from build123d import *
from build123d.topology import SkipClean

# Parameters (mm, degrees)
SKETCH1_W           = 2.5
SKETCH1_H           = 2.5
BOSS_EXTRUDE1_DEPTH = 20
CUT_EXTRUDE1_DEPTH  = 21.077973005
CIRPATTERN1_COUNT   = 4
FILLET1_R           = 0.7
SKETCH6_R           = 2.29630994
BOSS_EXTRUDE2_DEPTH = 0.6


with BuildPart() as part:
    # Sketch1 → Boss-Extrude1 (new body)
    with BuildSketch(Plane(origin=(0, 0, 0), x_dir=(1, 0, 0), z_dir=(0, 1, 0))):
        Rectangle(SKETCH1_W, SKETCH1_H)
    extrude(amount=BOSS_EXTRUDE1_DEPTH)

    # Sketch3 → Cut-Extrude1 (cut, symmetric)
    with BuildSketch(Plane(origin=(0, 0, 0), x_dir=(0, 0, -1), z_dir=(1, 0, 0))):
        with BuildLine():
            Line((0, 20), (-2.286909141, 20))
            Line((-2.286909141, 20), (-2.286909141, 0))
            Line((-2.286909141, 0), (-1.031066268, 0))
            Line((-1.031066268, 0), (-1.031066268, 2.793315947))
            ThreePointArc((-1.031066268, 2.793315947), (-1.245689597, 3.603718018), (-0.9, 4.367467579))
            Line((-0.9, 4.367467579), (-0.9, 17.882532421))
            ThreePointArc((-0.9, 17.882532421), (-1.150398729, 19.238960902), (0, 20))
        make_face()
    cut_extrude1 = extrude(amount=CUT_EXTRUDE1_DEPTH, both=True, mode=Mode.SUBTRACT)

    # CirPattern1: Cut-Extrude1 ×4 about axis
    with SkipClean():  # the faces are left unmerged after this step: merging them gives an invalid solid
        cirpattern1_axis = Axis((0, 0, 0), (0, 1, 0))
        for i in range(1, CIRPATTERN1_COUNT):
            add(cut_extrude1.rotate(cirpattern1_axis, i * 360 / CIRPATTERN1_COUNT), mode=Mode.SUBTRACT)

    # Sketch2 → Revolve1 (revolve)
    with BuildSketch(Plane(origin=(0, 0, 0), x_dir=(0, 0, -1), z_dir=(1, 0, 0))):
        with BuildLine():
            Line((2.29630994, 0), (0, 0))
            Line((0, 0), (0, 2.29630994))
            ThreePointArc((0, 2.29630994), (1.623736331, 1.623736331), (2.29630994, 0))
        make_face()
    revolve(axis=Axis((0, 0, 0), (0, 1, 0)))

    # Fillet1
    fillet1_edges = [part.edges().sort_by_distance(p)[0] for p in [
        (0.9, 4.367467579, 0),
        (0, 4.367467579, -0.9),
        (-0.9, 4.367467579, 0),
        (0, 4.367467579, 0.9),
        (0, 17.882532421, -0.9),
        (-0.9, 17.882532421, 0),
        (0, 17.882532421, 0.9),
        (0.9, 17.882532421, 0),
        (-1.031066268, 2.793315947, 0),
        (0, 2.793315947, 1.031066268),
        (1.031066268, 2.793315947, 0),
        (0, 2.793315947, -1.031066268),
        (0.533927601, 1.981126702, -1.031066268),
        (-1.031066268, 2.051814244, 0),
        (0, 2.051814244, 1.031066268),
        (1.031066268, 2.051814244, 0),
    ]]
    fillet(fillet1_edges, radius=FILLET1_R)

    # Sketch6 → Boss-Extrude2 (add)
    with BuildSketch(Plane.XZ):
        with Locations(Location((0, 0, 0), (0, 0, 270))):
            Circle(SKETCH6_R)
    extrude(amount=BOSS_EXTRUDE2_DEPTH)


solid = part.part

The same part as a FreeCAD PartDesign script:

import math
import FreeCAD as App
import Part
import Sketcher
Q = App.Units.Quantity


def edges_at(feature, points):
    """Names of the edges that pass closest to the given points."""
    edges = feature.Shape.Edges
    near = lambda p: min(range(len(edges)), key=lambda i: edges[i].distToShape(Part.Vertex(*p))[0])
    return sorted({f"Edge{near(p) + 1}" for p in points})

doc = App.newDocument("Part")
body = doc.addObject("PartDesign::Body", "Body")

# Sketch on XZ plane
sketch1 = body.newObject("Sketcher::SketchObject", "Sketch")
sketch1.AttachmentSupport = (doc.getObject("XZ_Plane"), [""])
sketch1.MapMode = "FlatFace"
sketch1.addGeometry(Part.LineSegment(App.Vector(-1.25, -1.25, 0), App.Vector(-1.25, 1.25, 0)), False)
sketch1.addGeometry(Part.LineSegment(App.Vector(-1.25, 1.25, 0), App.Vector(1.25, 1.25, 0)), False)
sketch1.addGeometry(Part.LineSegment(App.Vector(1.25, 1.25, 0), App.Vector(1.25, -1.25, 0)), False)
sketch1.addGeometry(Part.LineSegment(App.Vector(1.25, -1.25, 0), App.Vector(-1.25, -1.25, 0)), False)
sketch1.addConstraint(Sketcher.Constraint("Coincident", 0, 2, 1, 1))
sketch1.addConstraint(Sketcher.Constraint("Coincident", 1, 2, 2, 1))
sketch1.addConstraint(Sketcher.Constraint("Coincident", 2, 2, 3, 1))
sketch1.addConstraint(Sketcher.Constraint("Coincident", 3, 2, 0, 1))
sketch1.addConstraint(Sketcher.Constraint("Vertical", 0))
sketch1.addConstraint(Sketcher.Constraint("Horizontal", 1))
sketch1.addConstraint(Sketcher.Constraint("Vertical", 2))
sketch1.addConstraint(Sketcher.Constraint("Horizontal", 3))
sketch1.addConstraint(Sketcher.Constraint("Symmetric", 0, 2, 2, 2, -1, 1))
sketch1.addConstraint(Sketcher.Constraint("Equal", 3, 0))
sketch1.addConstraint(Sketcher.Constraint("DistanceX", 1, 1, 1, 2, Q("2.5 mm")))
pad1 = body.newObject("PartDesign::Pad", "Pad")
pad1.Profile = sketch1
pad1.Length = 20
pad1.Reversed = True

# Sketch on YZ plane
sketch2 = body.newObject("Sketcher::SketchObject", "Sketch001")
sketch2.AttachmentSupport = (doc.getObject("YZ_Plane"), [""])
sketch2.MapMode = "FlatFace"
sketch2.addGeometry(Part.LineSegment(App.Vector(20, 0, 0), App.Vector(20, 2.286909, 0)), False)
sketch2.addGeometry(Part.LineSegment(App.Vector(20, 2.286909, 0), App.Vector(0, 2.286909, 0)), False)
sketch2.addGeometry(Part.LineSegment(App.Vector(0, 2.286909, 0), App.Vector(0, 1.031066, 0)), False)
sketch2.addGeometry(Part.LineSegment(App.Vector(0, 1.031066, 0), App.Vector(2.793316, 1.031066, 0)), False)
sketch2.addGeometry(Part.ArcOfCircle(Part.Circle(App.Vector(3.5, 0, 0), App.Vector(0, 0, 1), 1.25), math.radians(46.05448), math.radians(124.426408)), False)
sketch2.addGeometry(Part.LineSegment(App.Vector(4.367468, 0.9, 0), App.Vector(17.882532, 0.9, 0)), False)
sketch2.addGeometry(Part.ArcOfCircle(Part.Circle(App.Vector(18.75, 0, 0), App.Vector(0, 0, 1), 1.25), math.radians(0), math.radians(133.94552)), False)
sketch2.addConstraint(Sketcher.Constraint("Coincident", 0, 2, 1, 1))
sketch2.addConstraint(Sketcher.Constraint("Coincident", 1, 2, 2, 1))
sketch2.addConstraint(Sketcher.Constraint("Coincident", 2, 2, 3, 1))
sketch2.addConstraint(Sketcher.Constraint("Coincident", 3, 2, 4, 2))
sketch2.addConstraint(Sketcher.Constraint("Coincident", 4, 1, 5, 1))
sketch2.addConstraint(Sketcher.Constraint("Coincident", 5, 2, 6, 2))
sketch2.addConstraint(Sketcher.Constraint("Tangent", 6, 1, 0, 1))
sketch2.addConstraint(Sketcher.Constraint("Vertical", 0))
sketch2.addConstraint(Sketcher.Constraint("Horizontal", 1))
sketch2.addConstraint(Sketcher.Constraint("Vertical", 2))
sketch2.addConstraint(Sketcher.Constraint("Horizontal", 3))
sketch2.addConstraint(Sketcher.Constraint("Horizontal", 5))
sketch2.addConstraint(Sketcher.Constraint("Equal", 4, 6))
sketch2.addConstraint(Sketcher.Constraint("PointOnObject", 4, 3, -1))
sketch2.addConstraint(Sketcher.Constraint("PointOnObject", 6, 3, -1))
sketch2.addConstraint(Sketcher.Constraint("PointOnObject", 1, 2, -2))
sketch2.addConstraint(Sketcher.Constraint("DistanceX", 1, 2, 1, 1, Q("20 mm")))
sketch2.addConstraint(Sketcher.Constraint("Radius", 4, Q("1.25 mm")))
sketch2.addConstraint(Sketcher.Constraint("DistanceX", -1, 1, 4, 3, Q("3.5 mm")))
sketch2.addConstraint(Sketcher.Constraint("DistanceY", -1, 1, 4, 1, Q("0.9 mm")))
sketch2.addConstraint(Sketcher.Constraint("DistanceY", 0, 1, 0, 2, Q("2.286909 mm")))
sketch2.addConstraint(Sketcher.Constraint("DistanceX", 3, 1, 3, 2, Q("2.793316 mm")))
pocket1 = body.newObject("PartDesign::Pocket", "Pocket")
pocket1.Profile = sketch2
pocket1.Length = 42.155946
pocket1.Midplane = True
doc.recompute()

polarpattern = body.newObject("PartDesign::PolarPattern", "PolarPattern")
polarpattern.Originals = [pocket1]
polarpattern.Axis = (doc.getObject("Y_Axis"), [""])
polarpattern.Angle = 360
polarpattern.Occurrences = 4
body.Tip = polarpattern

# Sketch on YZ plane
sketch3 = body.newObject("Sketcher::SketchObject", "Sketch002")
sketch3.AttachmentSupport = (doc.getObject("YZ_Plane"), [""])
sketch3.MapMode = "FlatFace"
sketch3.addGeometry(Part.LineSegment(App.Vector(0, 0, 0), App.Vector(0, -2.29631, 0)), False)
sketch3.addGeometry(Part.ArcOfCircle(Part.Circle(App.Vector(0, 0, 0), App.Vector(0, 0, 1), 2.29631), math.radians(-90), math.radians(0)), False)
sketch3.addGeometry(Part.LineSegment(App.Vector(2.29631, 0, 0), App.Vector(0, 0, 0)), False)
sketch3.addConstraint(Sketcher.Constraint("Coincident", 0, 2, 1, 1))
sketch3.addConstraint(Sketcher.Constraint("Coincident", 1, 2, 2, 1))
sketch3.addConstraint(Sketcher.Constraint("Coincident", 2, 2, 0, 1))
sketch3.addConstraint(Sketcher.Constraint("Vertical", 0))
sketch3.addConstraint(Sketcher.Constraint("Horizontal", 2))
sketch3.addConstraint(Sketcher.Constraint("Coincident", 1, 3, -1, 1))
sketch3.addConstraint(Sketcher.Constraint("Coincident", 2, 2, -1, 1))
sketch3.addConstraint(Sketcher.Constraint("Radius", 1, Q("2.29631 mm")))
revolution = body.newObject("PartDesign::Revolution", "Revolution")
revolution.Profile = sketch3
revolution.ReferenceAxis = (sketch3, ["H_Axis"])
revolution.Angle = 360
doc.recompute()

fillet = body.newObject("PartDesign::Fillet", "Fillet")
fillet.Base = (revolution, edges_at(revolution, [
    (0.9, 4.367, 0),
    (0, 4.367, -0.9),
    (-0.9, 4.367, 0),
    (0, 4.367, 0.9),
    (0, 17.883, -0.9),
    (-0.9, 17.883, 0),
    (0, 17.883, 0.9),
    (0.9, 17.883, 0),
    (-1.031, 2.793, 0),
    (0, 2.793, 1.031),
    (1.031, 2.793, 0),
    (0, 2.793, -1.031),
    (0.534, 1.981, -1.031),
    (-1.031, 2.052, 0),
    (0, 2.052, 1.031),
    (1.031, 2.052, 0),
]))
fillet.Radius = 0.7

# Sketch on XZ plane
sketch4 = body.newObject("Sketcher::SketchObject", "Sketch003")
sketch4.AttachmentSupport = (doc.getObject("XZ_Plane"), [""])
sketch4.MapMode = "FlatFace"
sketch4.addGeometry(Part.Circle(App.Vector(0, 0, 0), App.Vector(0, 0, 1), 2.29631), False)
sketch4.addConstraint(Sketcher.Constraint("Coincident", 0, 3, -1, 1))
sketch4.addConstraint(Sketcher.Constraint("Diameter", 0, Q("4.59262 mm")))
pad2 = body.newObject("PartDesign::Pad", "Pad001")
pad2.Profile = sketch4
pad2.Length = 0.6

doc.recompute()
